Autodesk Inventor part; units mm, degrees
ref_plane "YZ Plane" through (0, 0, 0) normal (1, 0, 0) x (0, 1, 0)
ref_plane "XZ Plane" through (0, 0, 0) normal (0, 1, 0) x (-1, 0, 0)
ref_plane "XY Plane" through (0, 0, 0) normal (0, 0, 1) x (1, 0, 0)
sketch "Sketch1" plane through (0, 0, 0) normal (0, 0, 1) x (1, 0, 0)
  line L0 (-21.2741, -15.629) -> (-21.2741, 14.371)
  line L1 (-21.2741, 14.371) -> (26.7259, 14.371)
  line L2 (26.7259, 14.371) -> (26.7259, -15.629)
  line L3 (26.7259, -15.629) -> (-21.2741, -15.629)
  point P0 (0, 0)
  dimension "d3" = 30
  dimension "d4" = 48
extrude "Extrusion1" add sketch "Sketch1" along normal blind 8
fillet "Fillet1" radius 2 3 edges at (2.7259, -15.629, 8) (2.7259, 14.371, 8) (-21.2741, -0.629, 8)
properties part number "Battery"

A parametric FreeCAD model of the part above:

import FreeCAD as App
import Part
import Sketcher
from FreeCAD import Vector


def edges_at(feature, points):
    """Names of the edges that pass closest to the given points."""
    edges = feature.Shape.Edges
    near = lambda p: min(range(len(edges)), key=lambda i: edges[i].distToShape(Part.Vertex(*p))[0])
    return sorted({f"Edge{near(p) + 1}" for p in points})


def add_polygon(sketch, points):
    """Adds a closed chain of lines whose ends are joined by coincident constraints."""
    first, n = sketch.GeometryCount, len(points)
    for a, b in zip(points, points[1:] + points[:1]):
        sketch.addGeometry(Part.LineSegment(App.Vector(*a, 0), App.Vector(*b, 0)), False)
    for i in range(n):
        sketch.addConstraint(Sketcher.Constraint("Coincident", first + i, 2, first + (i + 1) % n, 1))

doc = App.newDocument("Part")
body = doc.addObject("PartDesign::Body", "Body")

sketch1 = doc.addObject("Sketcher::SketchObject", "Sketch")
body.addObject(sketch1)
sketch1.AttachmentSupport = (doc.XY_Plane, [""])
sketch1.MapMode = "FlatFace"
add_polygon(sketch1, [(-21.2741, 14.371), (-21.2741, -15.629), (26.7259, -15.629), (26.7259, 14.371)])
sketch1.addConstraint([
    Sketcher.Constraint("Vertical", 0),
    Sketcher.Constraint("Horizontal", 1),
    Sketcher.Constraint("Vertical", 2),
    Sketcher.Constraint("Horizontal", 3),
    Sketcher.Constraint("DistanceX", 1, 1, 1, 2, 48.0),
    Sketcher.Constraint("DistanceY", 0, 2, 0, 1, 30.0),
    Sketcher.Constraint("DistanceX", 0, 2, -1, 1, 21.274),
    Sketcher.Constraint("DistanceY", 0, 2, -1, 1, 15.629),
])
pad1 = doc.addObject("PartDesign::Pad", "Pad")
body.addObject(pad1)
pad1.Profile = sketch1
pad1.Length = 8
doc.recompute()

fillet = doc.addObject("PartDesign::Fillet", "Fillet")
body.addObject(fillet)
fillet.Base = (pad1, edges_at(pad1, [(2.726, -15.629, 8), (2.726, 14.371, 8), (-21.274, -0.629, 8)]))
fillet.Radius = 2

doc.recompute()
